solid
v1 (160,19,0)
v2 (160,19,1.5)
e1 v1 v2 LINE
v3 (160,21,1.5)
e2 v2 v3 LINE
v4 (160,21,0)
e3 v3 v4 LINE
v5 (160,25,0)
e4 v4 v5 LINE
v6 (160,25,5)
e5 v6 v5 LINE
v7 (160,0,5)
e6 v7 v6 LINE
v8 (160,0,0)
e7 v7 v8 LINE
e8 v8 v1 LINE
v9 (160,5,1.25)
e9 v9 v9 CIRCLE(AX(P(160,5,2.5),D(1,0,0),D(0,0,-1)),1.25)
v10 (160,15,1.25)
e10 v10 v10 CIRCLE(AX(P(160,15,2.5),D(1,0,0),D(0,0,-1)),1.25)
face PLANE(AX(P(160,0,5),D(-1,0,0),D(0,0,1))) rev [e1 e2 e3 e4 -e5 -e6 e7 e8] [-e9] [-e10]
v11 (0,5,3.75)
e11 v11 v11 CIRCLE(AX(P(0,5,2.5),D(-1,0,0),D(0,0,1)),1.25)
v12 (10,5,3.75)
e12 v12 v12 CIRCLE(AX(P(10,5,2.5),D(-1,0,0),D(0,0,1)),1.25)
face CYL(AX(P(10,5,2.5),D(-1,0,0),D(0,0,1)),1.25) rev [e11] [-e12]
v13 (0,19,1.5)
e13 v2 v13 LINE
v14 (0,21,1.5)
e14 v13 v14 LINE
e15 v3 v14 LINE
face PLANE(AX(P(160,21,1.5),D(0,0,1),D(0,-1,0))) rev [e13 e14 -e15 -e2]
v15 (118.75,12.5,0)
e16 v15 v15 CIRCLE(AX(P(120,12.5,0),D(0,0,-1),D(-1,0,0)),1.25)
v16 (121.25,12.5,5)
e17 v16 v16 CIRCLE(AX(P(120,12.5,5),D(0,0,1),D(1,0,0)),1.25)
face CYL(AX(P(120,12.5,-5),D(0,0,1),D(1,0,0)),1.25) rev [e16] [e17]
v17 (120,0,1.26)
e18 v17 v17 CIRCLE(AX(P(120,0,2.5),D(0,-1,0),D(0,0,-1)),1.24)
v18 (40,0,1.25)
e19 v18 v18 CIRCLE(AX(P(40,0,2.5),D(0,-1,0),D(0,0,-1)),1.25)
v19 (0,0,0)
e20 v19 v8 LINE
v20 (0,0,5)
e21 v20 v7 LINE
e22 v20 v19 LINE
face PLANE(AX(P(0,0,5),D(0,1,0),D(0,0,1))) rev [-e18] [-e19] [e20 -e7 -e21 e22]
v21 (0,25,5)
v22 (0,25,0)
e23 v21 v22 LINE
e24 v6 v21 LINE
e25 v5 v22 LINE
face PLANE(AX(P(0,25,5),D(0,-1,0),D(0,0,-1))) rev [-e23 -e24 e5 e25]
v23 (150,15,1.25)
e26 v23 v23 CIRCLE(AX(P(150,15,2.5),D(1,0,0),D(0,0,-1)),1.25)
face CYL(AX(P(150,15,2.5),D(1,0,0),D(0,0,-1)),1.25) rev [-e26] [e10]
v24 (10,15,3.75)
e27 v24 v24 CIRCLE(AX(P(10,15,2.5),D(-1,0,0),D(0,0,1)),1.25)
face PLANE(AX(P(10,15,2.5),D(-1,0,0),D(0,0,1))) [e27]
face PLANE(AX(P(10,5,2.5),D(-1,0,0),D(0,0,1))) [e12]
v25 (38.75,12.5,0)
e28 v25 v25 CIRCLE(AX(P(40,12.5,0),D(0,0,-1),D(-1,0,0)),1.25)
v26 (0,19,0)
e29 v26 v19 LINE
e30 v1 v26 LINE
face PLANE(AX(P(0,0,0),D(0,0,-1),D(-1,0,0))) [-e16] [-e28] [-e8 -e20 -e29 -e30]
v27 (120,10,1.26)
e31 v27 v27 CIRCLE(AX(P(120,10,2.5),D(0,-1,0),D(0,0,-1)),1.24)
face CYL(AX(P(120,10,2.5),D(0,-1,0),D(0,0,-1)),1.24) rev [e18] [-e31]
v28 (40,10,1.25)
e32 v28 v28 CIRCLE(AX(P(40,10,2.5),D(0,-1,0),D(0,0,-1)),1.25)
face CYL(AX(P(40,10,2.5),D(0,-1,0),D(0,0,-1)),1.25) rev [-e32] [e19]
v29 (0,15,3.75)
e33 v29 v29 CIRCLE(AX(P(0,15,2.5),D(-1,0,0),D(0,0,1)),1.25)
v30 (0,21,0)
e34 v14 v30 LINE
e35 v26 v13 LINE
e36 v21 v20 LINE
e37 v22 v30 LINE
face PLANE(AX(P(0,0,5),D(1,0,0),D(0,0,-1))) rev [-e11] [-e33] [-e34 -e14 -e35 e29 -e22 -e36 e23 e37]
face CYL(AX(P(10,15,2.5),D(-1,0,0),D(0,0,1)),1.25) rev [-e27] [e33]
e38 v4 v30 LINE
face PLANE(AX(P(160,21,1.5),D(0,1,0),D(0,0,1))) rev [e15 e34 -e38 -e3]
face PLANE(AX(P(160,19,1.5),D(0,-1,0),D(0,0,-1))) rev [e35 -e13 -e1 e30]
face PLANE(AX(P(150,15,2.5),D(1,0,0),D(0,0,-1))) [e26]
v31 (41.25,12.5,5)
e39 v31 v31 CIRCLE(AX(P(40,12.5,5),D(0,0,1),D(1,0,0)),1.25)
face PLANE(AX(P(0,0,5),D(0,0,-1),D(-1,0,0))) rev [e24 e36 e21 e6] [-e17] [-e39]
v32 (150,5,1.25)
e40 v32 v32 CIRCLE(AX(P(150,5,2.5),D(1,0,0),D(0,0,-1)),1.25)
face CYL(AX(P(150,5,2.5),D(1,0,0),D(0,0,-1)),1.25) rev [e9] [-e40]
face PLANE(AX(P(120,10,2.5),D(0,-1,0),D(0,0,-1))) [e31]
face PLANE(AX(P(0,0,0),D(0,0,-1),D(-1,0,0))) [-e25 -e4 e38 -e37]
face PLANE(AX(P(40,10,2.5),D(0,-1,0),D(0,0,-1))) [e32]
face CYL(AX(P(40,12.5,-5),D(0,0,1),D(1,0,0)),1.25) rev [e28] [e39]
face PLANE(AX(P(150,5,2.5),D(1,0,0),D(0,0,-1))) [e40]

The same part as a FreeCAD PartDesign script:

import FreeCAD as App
import Part
import Sketcher

V = App.Vector


def add_polygon(sketch, points):
    """Adds a closed chain of lines whose ends are joined by coincident constraints."""
    first, n = sketch.GeometryCount, len(points)
    for a, b in zip(points, points[1:] + points[:1]):
        sketch.addGeometry(Part.LineSegment(App.Vector(*a, 0), App.Vector(*b, 0)), False)
    for i in range(n):
        sketch.addConstraint(Sketcher.Constraint("Coincident", first + i, 2, first + (i + 1) % n, 1))

doc = App.newDocument("Part")
body = doc.addObject("PartDesign::Body", "Body")

# Sketch on XY plane
sketch1 = doc.addObject("Sketcher::SketchObject", "Sketch")
body.addObject(sketch1)
sketch1.AttachmentSupport = (doc.XY_Plane, [""])
sketch1.MapMode = "FlatFace"
add_polygon(sketch1, [(0, 25), (0, 0), (160, 0), (160, 25)])  # lines 0-3
sketch1.addConstraint(Sketcher.Constraint("Vertical", 0))
sketch1.addConstraint(Sketcher.Constraint("Horizontal", 1))
sketch1.addConstraint(Sketcher.Constraint("Vertical", 2))
sketch1.addConstraint(Sketcher.Constraint("Horizontal", 3))
sketch1.addConstraint(Sketcher.Constraint("Coincident", 0, 2, -1, 1))
sketch1.addConstraint(Sketcher.Constraint("DistanceX", 1, 1, 1, 2, 160.0))
sketch1.addConstraint(Sketcher.Constraint("DistanceY", 0, 2, 0, 1, 25.0))
pad1 = doc.addObject("PartDesign::Pad", "Pad")
body.addObject(pad1)
pad1.Profile = sketch1
pad1.Length = 5

# Sketch on XZ plane
sketch2 = doc.addObject("Sketcher::SketchObject", "Sketch001")
body.addObject(sketch2)
sketch2.AttachmentSupport = (doc.XZ_Plane, [""])
sketch2.MapMode = "FlatFace"
sketch2.addGeometry(Part.Circle(V(40, 2.5, 0), V(0, 0, 1), 1.2), False)
sketch2.addGeometry(Part.Circle(V(120, 2.5, 0), V(0, 0, 1), 1.2), False)
sketch2.addConstraint(Sketcher.Constraint("Horizontal", 0, 3, 1, 3))
sketch2.addConstraint(Sketcher.Constraint("Diameter", 0, 2.5))
sketch2.addConstraint(Sketcher.Constraint("Diameter", 1, 2.48))
sketch2.addConstraint(Sketcher.Constraint("DistanceX", -1, 1, 0, 3, 40.0))
sketch2.addConstraint(Sketcher.Constraint("DistanceX", -1, 1, 1, 3, 120.0))
sketch2.addConstraint(Sketcher.Constraint("DistanceY", -1, 1, 0, 3, 2.5))
pocket1 = doc.addObject("PartDesign::Pocket", "Pocket")
body.addObject(pocket1)
pocket1.Profile = sketch2
pocket1.Length = 10

# Sketch on YZ plane
sketch3 = doc.addObject("Sketcher::SketchObject", "Sketch002")
body.addObject(sketch3)
sketch3.AttachmentSupport = (doc.YZ_Plane, [""])
sketch3.MapMode = "FlatFace"
add_polygon(sketch3, [(21, 0), (19, 0), (19, 1.5), (21, 1.5)])  # lines 0-3
sketch3.addConstraint(Sketcher.Constraint("Horizontal", 0))
sketch3.addConstraint(Sketcher.Constraint("Vertical", 1))
sketch3.addConstraint(Sketcher.Constraint("Horizontal", 2))
sketch3.addConstraint(Sketcher.Constraint("Vertical", 3))
sketch3.addConstraint(Sketcher.Constraint("PointOnObject", 0, 2, -1))
sketch3.addConstraint(Sketcher.Constraint("DistanceX", 0, 2, 0, 1, 2.0))
sketch3.addConstraint(Sketcher.Constraint("DistanceY", 1, 1, 1, 2, 1.5))
sketch3.addConstraint(Sketcher.Constraint("DistanceX", -1, 1, 0, 2, 19.0))
pocket2 = doc.addObject("PartDesign::Pocket", "Pocket001")
body.addObject(pocket2)
pocket2.Profile = sketch3
pocket2.Type = "ThroughAll"
pocket2.Reversed = True

# Sketch on XY plane
sketch4 = doc.addObject("Sketcher::SketchObject", "Sketch003")
body.addObject(sketch4)
sketch4.AttachmentSupport = (doc.XY_Plane, [""])
sketch4.MapMode = "FlatFace"
sketch4.AttachmentOffset = App.Placement(V(0, 0, 5), App.Rotation())
sketch4.addGeometry(Part.Circle(V(40, 12.5, 0), V(0, 0, 1), 1.2), False)
sketch4.addGeometry(Part.Circle(V(120, 12.5, 0), V(0, 0, 1), 1.2), False)
sketch4.addConstraint(Sketcher.Constraint("Equal", 0, 1))
sketch4.addConstraint(Sketcher.Constraint("Horizontal", 0, 3, 1, 3))
sketch4.addConstraint(Sketcher.Constraint("Diameter", 0, 2.5))
sketch4.addConstraint(Sketcher.Constraint("DistanceX", -1, 1, 0, 3, 40.0))
sketch4.addConstraint(Sketcher.Constraint("DistanceX", -1, 1, 1, 3, 120.0))
sketch4.addConstraint(Sketcher.Constraint("DistanceY", -1, 1, 0, 3, 12.5))
pocket3 = doc.addObject("PartDesign::Pocket", "Pocket002")
body.addObject(pocket3)
pocket3.Profile = sketch4
pocket3.Length = 10

# Sketch on YZ plane
sketch5 = doc.addObject("Sketcher::SketchObject", "Sketch004")
body.addObject(sketch5)
sketch5.AttachmentSupport = (doc.YZ_Plane, [""])
sketch5.MapMode = "FlatFace"
sketch5.addGeometry(Part.Circle(V(5, 2.5, 0), V(0, 0, 1), 1.2), False)
sketch5.addGeometry(Part.Circle(V(15, 2.5, 0), V(0, 0, 1), 1.2), False)
sketch5.addConstraint(Sketcher.Constraint("Equal", 0, 1))
sketch5.addConstraint(Sketcher.Constraint("Horizontal", 0, 3, 1, 3))
sketch5.addConstraint(Sketcher.Constraint("Diameter", 0, 2.5))
sketch5.addConstraint(Sketcher.Constraint("DistanceX", -1, 1, 0, 3, 5.0))
sketch5.addConstraint(Sketcher.Constraint("DistanceX", -1, 1, 1, 3, 15.0))
sketch5.addConstraint(Sketcher.Constraint("DistanceY", -1, 1, 0, 3, 2.5))
pocket4 = doc.addObject("PartDesign::Pocket", "Pocket003")
body.addObject(pocket4)
pocket4.Profile = sketch5
pocket4.Length = 10
pocket4.Reversed = True

# Sketch on YZ plane
sketch6 = doc.addObject("Sketcher::SketchObject", "Sketch005")
body.addObject(sketch6)
sketch6.AttachmentSupport = (doc.YZ_Plane, [""])
sketch6.MapMode = "FlatFace"
sketch6.AttachmentOffset = App.Placement(V(0, 0, 150), App.Rotation())
sketch6.addGeometry(Part.Circle(V(5, 2.5, 0), V(0, 0, 1), 1.2), False)
sketch6.addGeometry(Part.Circle(V(15, 2.5, 0), V(0, 0, 1), 1.2), False)
sketch6.addConstraint(Sketcher.Constraint("Equal", 0, 1))
sketch6.addConstraint(Sketcher.Constraint("Horizontal", 0, 3, 1, 3))
sketch6.addConstraint(Sketcher.Constraint("Diameter", 0, 2.5))
sketch6.addConstraint(Sketcher.Constraint("DistanceX", -1, 1, 0, 3, 5.0))
sketch6.addConstraint(Sketcher.Constraint("DistanceX", -1, 1, 1, 3, 15.0))
sketch6.addConstraint(Sketcher.Constraint("DistanceY", -1, 1, 0, 3, 2.5))
pocket5 = doc.addObject("PartDesign::Pocket", "Pocket004")
body.addObject(pocket5)
pocket5.Profile = sketch6
pocket5.Length = 10
pocket5.Reversed = True

doc.recompute()
